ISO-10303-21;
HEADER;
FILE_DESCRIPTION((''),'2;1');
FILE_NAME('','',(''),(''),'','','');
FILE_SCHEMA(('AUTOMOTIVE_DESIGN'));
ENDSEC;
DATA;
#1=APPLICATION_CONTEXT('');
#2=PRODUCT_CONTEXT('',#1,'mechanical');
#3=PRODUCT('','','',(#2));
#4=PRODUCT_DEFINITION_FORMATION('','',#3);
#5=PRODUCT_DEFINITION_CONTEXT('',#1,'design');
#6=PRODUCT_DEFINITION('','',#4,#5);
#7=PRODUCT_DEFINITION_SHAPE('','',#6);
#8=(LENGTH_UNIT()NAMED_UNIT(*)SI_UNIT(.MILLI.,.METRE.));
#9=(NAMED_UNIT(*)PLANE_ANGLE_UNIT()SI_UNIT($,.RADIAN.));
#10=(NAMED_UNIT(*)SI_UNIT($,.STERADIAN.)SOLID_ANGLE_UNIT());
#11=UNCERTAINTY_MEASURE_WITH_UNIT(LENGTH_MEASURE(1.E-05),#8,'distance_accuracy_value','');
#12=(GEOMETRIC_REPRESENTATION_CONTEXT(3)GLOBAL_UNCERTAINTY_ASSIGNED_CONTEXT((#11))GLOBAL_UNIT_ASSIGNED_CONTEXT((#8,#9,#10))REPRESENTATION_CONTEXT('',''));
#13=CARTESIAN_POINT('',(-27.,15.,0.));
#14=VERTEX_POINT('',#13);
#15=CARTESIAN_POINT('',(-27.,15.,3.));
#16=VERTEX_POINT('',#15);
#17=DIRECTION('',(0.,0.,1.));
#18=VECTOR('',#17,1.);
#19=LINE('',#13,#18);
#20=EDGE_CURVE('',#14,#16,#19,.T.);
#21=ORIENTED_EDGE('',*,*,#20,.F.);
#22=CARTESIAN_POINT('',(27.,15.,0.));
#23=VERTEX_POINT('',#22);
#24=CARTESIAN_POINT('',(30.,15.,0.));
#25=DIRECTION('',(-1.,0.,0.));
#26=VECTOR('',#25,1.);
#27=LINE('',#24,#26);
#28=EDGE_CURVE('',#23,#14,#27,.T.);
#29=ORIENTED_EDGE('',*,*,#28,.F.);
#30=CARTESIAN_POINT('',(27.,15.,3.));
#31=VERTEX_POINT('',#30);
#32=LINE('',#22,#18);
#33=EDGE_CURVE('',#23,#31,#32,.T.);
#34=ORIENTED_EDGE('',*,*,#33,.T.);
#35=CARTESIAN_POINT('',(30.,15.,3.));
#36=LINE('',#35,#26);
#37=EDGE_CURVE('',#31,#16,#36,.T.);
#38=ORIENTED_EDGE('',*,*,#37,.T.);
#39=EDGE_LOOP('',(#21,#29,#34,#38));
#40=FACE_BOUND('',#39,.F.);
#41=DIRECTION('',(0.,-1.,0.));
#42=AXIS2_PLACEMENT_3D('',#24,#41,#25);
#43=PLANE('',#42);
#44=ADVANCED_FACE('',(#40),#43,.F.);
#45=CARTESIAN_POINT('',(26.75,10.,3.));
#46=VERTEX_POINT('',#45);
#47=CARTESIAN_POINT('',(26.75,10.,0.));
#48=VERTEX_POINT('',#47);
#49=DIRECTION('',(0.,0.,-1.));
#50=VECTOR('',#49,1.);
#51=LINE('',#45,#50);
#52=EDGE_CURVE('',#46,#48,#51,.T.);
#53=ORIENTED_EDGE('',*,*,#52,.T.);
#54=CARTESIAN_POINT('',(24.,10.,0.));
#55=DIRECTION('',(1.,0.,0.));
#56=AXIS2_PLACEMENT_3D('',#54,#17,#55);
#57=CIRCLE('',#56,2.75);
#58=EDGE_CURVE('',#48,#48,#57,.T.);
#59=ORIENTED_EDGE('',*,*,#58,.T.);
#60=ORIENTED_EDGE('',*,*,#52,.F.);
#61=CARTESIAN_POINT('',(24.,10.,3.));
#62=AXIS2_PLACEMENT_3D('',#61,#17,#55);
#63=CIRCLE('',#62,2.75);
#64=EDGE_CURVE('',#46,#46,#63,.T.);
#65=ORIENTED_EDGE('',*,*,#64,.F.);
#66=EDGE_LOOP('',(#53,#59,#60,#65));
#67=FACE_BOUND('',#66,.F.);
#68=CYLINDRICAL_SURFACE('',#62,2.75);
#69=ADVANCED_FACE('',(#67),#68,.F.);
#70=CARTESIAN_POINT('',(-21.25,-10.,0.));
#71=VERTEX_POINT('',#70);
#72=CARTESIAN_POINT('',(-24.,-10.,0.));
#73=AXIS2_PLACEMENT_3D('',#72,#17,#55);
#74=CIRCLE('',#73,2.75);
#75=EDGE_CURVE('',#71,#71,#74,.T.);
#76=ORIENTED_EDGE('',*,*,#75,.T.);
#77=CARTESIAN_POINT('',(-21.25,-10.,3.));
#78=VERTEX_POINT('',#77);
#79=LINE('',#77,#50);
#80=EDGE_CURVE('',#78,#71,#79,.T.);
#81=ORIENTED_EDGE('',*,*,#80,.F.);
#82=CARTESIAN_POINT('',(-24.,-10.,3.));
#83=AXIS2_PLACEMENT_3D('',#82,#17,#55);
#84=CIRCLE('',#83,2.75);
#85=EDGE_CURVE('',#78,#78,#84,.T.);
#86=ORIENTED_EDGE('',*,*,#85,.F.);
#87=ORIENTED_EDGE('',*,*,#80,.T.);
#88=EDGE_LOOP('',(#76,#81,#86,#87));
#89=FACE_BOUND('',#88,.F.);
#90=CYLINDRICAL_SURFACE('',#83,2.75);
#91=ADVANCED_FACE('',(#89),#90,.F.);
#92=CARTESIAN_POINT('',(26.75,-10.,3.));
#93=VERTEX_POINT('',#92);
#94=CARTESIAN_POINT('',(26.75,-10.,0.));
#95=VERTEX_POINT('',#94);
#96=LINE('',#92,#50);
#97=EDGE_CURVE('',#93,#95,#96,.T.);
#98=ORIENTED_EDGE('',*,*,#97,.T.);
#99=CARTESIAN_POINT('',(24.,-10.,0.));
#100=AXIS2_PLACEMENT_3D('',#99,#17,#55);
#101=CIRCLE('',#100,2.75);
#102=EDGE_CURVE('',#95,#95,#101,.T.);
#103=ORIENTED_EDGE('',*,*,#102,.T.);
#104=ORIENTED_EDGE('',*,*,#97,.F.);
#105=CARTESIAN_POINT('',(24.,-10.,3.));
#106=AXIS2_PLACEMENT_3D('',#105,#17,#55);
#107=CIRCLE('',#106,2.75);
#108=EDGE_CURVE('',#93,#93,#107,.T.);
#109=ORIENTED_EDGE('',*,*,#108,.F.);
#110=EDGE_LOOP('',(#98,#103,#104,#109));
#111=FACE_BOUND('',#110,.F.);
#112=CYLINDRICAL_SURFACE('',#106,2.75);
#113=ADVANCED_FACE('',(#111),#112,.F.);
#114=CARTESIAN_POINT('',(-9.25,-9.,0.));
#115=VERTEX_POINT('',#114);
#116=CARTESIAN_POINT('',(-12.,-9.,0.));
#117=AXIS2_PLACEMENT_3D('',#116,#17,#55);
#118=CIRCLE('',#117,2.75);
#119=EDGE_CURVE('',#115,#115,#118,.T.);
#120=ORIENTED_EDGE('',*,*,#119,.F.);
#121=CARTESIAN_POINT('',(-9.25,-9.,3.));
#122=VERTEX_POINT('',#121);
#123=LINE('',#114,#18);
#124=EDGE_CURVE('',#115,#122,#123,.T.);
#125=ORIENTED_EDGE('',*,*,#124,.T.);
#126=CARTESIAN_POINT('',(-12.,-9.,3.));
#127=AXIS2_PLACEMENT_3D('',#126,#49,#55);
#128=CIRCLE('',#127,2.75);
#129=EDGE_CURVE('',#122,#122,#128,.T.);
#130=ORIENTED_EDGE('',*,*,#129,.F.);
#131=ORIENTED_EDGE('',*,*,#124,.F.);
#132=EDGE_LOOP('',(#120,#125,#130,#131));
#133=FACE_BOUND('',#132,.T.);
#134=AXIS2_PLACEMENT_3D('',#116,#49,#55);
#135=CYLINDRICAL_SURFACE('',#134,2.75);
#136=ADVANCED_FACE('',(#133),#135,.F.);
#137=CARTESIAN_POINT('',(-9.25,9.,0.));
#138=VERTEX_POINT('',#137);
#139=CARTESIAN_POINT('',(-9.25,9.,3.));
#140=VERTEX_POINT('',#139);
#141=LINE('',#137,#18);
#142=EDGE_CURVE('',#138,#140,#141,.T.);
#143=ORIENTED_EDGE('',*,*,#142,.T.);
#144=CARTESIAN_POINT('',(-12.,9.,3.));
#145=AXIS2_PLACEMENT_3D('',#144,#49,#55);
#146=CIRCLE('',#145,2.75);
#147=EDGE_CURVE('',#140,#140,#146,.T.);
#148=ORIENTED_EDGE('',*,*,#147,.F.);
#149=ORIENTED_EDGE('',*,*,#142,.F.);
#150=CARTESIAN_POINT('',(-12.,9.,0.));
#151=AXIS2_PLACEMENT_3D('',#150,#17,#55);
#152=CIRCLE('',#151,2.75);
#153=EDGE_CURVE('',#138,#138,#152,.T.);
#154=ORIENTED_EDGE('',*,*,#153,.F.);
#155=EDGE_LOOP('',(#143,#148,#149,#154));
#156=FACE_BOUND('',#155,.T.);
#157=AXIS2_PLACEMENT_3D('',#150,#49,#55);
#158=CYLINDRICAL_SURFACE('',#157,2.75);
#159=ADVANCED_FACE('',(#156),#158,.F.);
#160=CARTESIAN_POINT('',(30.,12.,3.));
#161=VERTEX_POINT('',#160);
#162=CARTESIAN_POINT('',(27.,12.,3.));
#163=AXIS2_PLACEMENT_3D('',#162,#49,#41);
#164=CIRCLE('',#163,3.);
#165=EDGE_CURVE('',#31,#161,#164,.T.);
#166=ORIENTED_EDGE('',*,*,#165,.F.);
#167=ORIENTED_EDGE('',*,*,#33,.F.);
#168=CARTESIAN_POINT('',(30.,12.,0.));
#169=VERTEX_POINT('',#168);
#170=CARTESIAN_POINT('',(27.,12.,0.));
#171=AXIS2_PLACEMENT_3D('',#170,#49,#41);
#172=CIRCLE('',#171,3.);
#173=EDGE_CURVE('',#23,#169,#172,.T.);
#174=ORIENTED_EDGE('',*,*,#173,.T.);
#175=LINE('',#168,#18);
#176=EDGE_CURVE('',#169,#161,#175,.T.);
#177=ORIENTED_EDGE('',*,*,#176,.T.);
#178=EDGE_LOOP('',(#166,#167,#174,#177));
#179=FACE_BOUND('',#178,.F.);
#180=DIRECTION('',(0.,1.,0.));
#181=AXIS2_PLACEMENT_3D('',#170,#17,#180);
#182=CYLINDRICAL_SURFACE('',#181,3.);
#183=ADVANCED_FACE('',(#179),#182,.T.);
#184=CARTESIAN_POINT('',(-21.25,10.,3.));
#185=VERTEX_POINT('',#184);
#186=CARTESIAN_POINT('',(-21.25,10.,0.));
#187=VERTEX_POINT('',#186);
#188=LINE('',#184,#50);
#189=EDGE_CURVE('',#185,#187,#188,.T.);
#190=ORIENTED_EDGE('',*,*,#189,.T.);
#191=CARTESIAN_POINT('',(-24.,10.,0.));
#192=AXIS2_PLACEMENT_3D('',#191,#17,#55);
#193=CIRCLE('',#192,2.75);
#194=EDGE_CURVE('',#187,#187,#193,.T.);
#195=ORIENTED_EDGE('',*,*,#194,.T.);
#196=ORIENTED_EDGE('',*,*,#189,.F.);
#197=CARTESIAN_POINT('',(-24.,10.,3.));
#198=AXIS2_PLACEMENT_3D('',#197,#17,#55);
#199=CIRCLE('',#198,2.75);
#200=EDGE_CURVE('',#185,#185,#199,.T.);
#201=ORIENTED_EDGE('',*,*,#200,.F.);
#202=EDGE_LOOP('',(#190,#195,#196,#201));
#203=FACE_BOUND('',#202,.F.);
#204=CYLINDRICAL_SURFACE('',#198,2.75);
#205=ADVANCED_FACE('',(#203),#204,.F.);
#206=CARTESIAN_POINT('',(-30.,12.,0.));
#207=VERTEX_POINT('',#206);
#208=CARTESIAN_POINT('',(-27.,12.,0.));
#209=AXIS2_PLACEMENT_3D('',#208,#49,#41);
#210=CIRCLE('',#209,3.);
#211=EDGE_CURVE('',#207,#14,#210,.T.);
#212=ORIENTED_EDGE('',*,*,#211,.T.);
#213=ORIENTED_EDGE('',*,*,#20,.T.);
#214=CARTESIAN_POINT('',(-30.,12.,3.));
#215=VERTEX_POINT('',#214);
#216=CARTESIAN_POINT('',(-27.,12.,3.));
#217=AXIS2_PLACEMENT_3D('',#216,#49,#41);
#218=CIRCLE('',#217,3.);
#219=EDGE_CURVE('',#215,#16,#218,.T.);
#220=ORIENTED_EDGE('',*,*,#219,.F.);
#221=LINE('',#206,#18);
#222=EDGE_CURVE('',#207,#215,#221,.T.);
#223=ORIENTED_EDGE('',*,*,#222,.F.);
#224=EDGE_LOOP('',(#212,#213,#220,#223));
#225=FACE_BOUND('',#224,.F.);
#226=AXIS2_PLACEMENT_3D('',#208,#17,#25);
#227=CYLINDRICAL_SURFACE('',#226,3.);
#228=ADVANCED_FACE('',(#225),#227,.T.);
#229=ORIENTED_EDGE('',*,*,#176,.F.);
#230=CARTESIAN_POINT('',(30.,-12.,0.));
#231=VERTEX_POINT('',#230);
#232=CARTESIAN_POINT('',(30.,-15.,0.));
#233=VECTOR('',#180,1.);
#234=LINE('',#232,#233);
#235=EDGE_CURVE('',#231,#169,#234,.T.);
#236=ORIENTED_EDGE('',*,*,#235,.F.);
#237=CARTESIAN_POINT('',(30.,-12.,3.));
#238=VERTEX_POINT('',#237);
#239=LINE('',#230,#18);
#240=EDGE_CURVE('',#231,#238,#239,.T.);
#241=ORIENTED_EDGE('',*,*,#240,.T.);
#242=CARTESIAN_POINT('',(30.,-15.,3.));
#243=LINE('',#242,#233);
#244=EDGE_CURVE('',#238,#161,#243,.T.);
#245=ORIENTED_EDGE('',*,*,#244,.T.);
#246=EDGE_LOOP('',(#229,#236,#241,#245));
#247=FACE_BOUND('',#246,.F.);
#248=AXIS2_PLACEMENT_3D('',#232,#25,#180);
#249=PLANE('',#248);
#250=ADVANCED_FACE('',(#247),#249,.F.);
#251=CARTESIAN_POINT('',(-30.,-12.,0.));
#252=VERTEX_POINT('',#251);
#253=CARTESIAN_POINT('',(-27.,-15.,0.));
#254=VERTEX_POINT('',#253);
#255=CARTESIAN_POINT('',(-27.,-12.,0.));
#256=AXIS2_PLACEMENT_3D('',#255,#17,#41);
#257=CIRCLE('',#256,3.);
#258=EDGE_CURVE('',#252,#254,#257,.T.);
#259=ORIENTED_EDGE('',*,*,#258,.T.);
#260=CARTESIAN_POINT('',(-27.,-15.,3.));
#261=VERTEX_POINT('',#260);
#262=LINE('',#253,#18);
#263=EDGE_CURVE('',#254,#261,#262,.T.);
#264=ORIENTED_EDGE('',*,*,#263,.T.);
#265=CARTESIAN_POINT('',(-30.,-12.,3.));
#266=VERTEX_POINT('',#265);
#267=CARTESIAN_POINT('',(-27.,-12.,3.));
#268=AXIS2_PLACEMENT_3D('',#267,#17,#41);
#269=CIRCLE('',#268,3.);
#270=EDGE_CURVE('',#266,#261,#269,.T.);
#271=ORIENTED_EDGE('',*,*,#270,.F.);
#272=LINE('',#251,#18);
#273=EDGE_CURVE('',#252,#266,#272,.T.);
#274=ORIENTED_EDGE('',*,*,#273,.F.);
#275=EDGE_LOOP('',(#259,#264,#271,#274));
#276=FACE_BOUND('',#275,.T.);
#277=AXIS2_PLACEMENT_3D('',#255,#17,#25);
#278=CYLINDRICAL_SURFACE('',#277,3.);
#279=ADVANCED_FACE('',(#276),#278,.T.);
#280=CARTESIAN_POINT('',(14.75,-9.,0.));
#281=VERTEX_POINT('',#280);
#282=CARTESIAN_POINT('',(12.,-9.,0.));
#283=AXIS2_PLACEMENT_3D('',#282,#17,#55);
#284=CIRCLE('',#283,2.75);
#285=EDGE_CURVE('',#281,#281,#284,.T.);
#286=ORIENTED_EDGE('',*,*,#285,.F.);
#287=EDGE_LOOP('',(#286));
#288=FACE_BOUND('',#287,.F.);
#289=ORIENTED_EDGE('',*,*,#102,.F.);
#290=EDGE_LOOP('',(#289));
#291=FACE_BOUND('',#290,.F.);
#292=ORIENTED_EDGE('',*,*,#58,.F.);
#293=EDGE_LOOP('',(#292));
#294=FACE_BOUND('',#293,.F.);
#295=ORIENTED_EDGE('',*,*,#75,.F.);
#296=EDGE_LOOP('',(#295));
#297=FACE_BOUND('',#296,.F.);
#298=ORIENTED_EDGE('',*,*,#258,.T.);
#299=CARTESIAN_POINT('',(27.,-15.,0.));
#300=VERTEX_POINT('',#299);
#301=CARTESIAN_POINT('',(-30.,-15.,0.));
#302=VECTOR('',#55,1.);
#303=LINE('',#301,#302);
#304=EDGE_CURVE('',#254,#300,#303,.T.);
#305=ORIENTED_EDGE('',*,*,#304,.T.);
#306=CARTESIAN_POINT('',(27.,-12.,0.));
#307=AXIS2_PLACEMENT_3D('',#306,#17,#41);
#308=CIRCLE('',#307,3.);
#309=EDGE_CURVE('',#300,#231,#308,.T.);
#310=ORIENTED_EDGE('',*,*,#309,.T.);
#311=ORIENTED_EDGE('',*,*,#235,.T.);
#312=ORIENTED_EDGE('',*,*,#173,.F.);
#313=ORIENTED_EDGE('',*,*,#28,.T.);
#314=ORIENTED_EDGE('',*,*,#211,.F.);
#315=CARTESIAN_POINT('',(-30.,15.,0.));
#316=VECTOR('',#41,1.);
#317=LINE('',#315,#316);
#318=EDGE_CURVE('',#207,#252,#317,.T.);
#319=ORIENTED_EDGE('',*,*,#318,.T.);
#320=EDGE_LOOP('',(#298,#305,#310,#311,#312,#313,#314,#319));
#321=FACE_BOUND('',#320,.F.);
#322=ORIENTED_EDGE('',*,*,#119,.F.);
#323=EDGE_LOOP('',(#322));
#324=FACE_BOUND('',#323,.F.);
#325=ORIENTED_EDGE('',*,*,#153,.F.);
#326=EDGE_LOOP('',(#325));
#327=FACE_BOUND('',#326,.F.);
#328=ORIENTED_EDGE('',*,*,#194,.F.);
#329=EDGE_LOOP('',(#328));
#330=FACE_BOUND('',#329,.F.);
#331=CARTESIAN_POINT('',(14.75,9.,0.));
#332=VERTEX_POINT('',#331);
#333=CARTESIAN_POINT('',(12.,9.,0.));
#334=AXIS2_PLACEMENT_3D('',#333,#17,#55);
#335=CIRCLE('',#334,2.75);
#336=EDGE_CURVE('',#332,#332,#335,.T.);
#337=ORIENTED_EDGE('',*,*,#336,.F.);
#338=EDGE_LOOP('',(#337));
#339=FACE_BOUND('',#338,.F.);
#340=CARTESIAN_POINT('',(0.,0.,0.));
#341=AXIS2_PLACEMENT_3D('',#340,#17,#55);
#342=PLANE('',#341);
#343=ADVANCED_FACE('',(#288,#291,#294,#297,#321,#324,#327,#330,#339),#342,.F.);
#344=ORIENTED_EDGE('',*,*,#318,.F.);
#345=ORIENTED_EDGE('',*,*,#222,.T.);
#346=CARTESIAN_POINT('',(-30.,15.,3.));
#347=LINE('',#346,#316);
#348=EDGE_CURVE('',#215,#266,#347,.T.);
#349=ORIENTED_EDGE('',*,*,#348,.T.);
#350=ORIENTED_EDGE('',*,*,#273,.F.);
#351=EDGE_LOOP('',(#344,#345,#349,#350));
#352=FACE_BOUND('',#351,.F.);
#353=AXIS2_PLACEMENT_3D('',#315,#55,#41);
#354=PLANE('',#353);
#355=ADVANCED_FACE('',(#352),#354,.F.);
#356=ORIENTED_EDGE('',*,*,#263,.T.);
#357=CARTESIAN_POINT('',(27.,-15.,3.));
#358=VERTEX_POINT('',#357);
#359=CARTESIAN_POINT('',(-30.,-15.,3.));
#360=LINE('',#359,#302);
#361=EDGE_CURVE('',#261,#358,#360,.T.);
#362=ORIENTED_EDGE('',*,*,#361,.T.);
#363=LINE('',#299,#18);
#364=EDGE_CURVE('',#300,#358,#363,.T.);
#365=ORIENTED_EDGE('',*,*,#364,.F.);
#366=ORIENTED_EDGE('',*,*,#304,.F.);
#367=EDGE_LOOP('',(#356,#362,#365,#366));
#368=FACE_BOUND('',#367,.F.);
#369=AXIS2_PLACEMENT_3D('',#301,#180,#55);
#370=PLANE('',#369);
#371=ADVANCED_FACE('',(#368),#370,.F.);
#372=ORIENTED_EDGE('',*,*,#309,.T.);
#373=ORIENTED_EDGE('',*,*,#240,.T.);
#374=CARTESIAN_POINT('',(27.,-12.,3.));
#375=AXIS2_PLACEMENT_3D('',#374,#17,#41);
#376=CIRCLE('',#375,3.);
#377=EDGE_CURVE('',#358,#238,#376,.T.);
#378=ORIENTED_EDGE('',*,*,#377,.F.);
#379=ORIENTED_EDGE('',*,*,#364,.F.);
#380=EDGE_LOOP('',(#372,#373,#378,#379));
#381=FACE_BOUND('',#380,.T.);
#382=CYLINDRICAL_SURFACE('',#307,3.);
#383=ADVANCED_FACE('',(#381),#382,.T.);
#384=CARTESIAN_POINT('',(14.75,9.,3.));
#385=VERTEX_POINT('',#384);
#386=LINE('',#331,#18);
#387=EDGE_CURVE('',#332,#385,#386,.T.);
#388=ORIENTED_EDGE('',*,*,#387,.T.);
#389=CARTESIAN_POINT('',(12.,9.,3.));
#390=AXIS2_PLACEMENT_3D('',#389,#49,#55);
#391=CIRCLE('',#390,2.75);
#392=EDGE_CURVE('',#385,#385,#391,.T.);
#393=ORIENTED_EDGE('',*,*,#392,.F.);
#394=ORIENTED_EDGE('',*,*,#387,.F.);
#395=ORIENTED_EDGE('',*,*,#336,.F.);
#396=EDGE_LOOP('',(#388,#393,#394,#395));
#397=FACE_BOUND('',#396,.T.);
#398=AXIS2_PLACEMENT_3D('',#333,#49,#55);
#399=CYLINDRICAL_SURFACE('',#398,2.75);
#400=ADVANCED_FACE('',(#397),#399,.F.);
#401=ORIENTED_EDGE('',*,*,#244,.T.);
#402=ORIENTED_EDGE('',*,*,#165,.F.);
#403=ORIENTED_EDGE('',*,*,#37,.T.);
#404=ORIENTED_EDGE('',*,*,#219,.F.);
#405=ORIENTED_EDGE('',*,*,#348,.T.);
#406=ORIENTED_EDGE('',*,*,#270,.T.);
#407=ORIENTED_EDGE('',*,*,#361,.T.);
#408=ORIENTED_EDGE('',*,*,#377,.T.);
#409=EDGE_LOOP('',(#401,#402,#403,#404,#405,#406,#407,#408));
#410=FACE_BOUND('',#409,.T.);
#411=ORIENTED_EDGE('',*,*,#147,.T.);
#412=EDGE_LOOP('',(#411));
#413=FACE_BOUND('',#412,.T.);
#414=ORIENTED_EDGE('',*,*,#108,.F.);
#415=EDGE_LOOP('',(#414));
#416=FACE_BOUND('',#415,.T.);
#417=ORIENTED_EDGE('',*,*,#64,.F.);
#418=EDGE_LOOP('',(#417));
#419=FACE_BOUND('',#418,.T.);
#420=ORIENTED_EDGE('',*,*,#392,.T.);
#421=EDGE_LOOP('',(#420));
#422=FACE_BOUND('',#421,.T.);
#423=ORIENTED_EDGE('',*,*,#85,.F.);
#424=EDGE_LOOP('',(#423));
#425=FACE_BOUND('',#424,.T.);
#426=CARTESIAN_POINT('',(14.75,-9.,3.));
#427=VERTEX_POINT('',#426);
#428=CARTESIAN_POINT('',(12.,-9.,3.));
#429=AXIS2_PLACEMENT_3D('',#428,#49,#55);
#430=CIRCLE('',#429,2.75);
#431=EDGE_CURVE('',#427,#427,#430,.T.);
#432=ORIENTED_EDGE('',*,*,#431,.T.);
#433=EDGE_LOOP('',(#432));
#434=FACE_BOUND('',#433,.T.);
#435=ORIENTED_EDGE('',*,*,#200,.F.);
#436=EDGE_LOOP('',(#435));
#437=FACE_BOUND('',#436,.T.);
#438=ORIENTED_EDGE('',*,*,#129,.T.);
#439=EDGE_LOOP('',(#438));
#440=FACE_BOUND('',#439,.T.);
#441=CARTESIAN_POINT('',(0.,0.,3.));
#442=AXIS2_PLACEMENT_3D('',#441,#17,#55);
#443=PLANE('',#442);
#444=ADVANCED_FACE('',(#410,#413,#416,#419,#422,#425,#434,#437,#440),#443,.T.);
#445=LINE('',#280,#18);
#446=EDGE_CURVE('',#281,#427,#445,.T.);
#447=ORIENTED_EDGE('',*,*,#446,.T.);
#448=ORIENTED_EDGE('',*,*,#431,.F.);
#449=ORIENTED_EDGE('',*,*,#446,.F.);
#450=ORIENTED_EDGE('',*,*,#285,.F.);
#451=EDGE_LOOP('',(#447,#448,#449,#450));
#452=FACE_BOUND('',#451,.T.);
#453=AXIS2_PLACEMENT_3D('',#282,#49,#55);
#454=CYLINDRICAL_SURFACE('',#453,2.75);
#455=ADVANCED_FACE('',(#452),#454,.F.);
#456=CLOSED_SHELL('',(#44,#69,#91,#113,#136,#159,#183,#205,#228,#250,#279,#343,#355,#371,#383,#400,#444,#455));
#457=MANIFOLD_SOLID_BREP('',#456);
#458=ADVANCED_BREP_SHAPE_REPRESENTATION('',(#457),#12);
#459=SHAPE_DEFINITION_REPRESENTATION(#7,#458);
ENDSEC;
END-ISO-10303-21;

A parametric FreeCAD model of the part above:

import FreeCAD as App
import Part
import Sketcher
from FreeCAD import Vector


def edges_at(feature, points):
    """Names of the edges that pass closest to the given points."""
    edges = feature.Shape.Edges
    near = lambda p: min(range(len(edges)), key=lambda i: edges[i].distToShape(Part.Vertex(*p))[0])
    return sorted({f"Edge{near(p) + 1}" for p in points})

doc = App.newDocument("Part")
params = doc.addObject("Spreadsheet::Sheet", "Params")
for row, (alias, value) in enumerate([
    ("sketch1_diameter", "5.5 mm"),
    ("sketch1_width", "60 mm"),
    ("sketch1_height", "30 mm"),
    ("pad1_length", "3 mm"),
    ("sketch2_diameter", "5.5 mm"),
    ("pocket1_length", "3 mm"),
    ("fillet_radius", "3 mm"),
], start=1):
    params.set(f"A{row}", alias)
    params.set(f"B{row}", "=" + value)
    params.setAlias(f"B{row}", alias)

body = doc.addObject("PartDesign::Body", "Body")

sketch1 = body.newObject("Sketcher::SketchObject", "Sketch")
sketch1.AttachmentSupport = (doc.getObject("XY_Plane"), [""])
sketch1.MapMode = "FlatFace"
sketch1.addGeometry(Part.LineSegment(Vector(-30, 15, 0), Vector(-30, -15, 0)), False)
sketch1.addGeometry(Part.LineSegment(Vector(-30, -15, 0), Vector(30, -15, 0)), False)
sketch1.addGeometry(Part.LineSegment(Vector(30, -15, 0), Vector(30, 15, 0)), False)
sketch1.addGeometry(Part.LineSegment(Vector(30, 15, 0), Vector(-30, 15, 0)), False)
sketch1.addGeometry(Part.Circle(Vector(12, -9, 0), Vector(0, 0, 1), 2.75), False)
sketch1.addGeometry(Part.Circle(Vector(12, 9, 0), Vector(0, 0, 1), 2.75), False)
sketch1.addGeometry(Part.Circle(Vector(-12, 9, 0), Vector(0, 0, 1), 2.75), False)
sketch1.addGeometry(Part.Circle(Vector(-12, -9, 0), Vector(0, 0, 1), 2.75), False)
sketch1.addConstraint(Sketcher.Constraint("Coincident", 0, 2, 1, 1))
sketch1.addConstraint(Sketcher.Constraint("Coincident", 1, 2, 2, 1))
sketch1.addConstraint(Sketcher.Constraint("Coincident", 2, 2, 3, 1))
sketch1.addConstraint(Sketcher.Constraint("Coincident", 3, 2, 0, 1))
sketch1.addConstraint(Sketcher.Constraint("Vertical", 0))
sketch1.addConstraint(Sketcher.Constraint("Horizontal", 1))
sketch1.addConstraint(Sketcher.Constraint("Vertical", 2))
sketch1.addConstraint(Sketcher.Constraint("Horizontal", 3))
sketch1.addConstraint(Sketcher.Constraint("Equal", 4, 5))
sketch1.addConstraint(Sketcher.Constraint("Equal", 5, 6))
sketch1.addConstraint(Sketcher.Constraint("Equal", 6, 7))
sketch1.addConstraint(Sketcher.Constraint("Symmetric", 4, 3, 6, 3, -1, 1))
sketch1.addConstraint(Sketcher.Constraint("Symmetric", 5, 3, 7, 3, -1, 1))
sketch1.addConstraint(Sketcher.Constraint("Symmetric", 0, 2, 2, 2, -1, 1))
sketch1.addConstraint(Sketcher.Constraint("Symmetric", 5, 3, 6, 3, -2))
sketch1.addConstraint(Sketcher.Constraint("Diameter", 4, 5.5))
sketch1.addConstraint(Sketcher.Constraint("DistanceX", 1, 1, 1, 2, 60.0))
sketch1.addConstraint(Sketcher.Constraint("DistanceY", 0, 2, 0, 1, 30.0))
sketch1.addConstraint(Sketcher.Constraint("DistanceY", 4, 3, 5, 3, 18.0))
sketch1.addConstraint(Sketcher.Constraint("DistanceX", 6, 3, 5, 3, 24.0))
sketch1.setExpression("Constraints[15]", "Params.sketch1_diameter")
sketch1.setExpression("Constraints[16]", "Params.sketch1_width")
sketch1.setExpression("Constraints[17]", "Params.sketch1_height")
pad1 = body.newObject("PartDesign::Pad", "Pad")
pad1.Profile = sketch1
pad1.setExpression("Length", "Params.pad1_length")

sketch2 = body.newObject("Sketcher::SketchObject", "Sketch001")
sketch2.AttachmentSupport = (doc.getObject("XY_Plane"), [""])
sketch2.MapMode = "FlatFace"
sketch2.AttachmentOffset = App.Placement(Vector(0, 0, 3), App.Rotation())
sketch2.addGeometry(Part.Circle(Vector(-24, 10, 0), Vector(0, 0, 1), 2.75), False)
sketch2.addGeometry(Part.Circle(Vector(-24, -10, 0), Vector(0, 0, 1), 2.75), False)
sketch2.addGeometry(Part.Circle(Vector(24, 10, 0), Vector(0, 0, 1), 2.75), False)
sketch2.addGeometry(Part.Circle(Vector(24, -10, 0), Vector(0, 0, 1), 2.75), False)
sketch2.addConstraint(Sketcher.Constraint("Equal", 0, 1))
sketch2.addConstraint(Sketcher.Constraint("Equal", 1, 2))
sketch2.addConstraint(Sketcher.Constraint("Equal", 2, 3))
sketch2.addConstraint(Sketcher.Constraint("Symmetric", 1, 3, 2, 3, -1, 1))
sketch2.addConstraint(Sketcher.Constraint("Symmetric", 0, 3, 3, 3, -1, 1))
sketch2.addConstraint(Sketcher.Constraint("Symmetric", 0, 3, 2, 3, -2))
sketch2.addConstraint(Sketcher.Constraint("Diameter", 0, 5.5))
sketch2.addConstraint(Sketcher.Constraint("DistanceY", -1, 1, 0, 3, 10.0))
sketch2.addConstraint(Sketcher.Constraint("DistanceX", 0, 3, -1, 1, 24.0))
sketch2.setExpression("Constraints[6]", "Params.sketch2_diameter")
pocket1 = body.newObject("PartDesign::Pocket", "Pocket")
pocket1.Profile = sketch2
pocket1.setExpression("Length", "Params.pocket1_length")
doc.recompute()

fillet = body.newObject("PartDesign::Fillet", "Fillet")
fillet.Base = (pocket1, edges_at(pocket1, [
    (30, 15, 1.5),
    (30, -15, 1.5),
    (-30, -15, 1.5),
    (-30, 15, 1.5),
]))
fillet.setExpression("Radius", "Params.fillet_radius")

doc.recompute()
